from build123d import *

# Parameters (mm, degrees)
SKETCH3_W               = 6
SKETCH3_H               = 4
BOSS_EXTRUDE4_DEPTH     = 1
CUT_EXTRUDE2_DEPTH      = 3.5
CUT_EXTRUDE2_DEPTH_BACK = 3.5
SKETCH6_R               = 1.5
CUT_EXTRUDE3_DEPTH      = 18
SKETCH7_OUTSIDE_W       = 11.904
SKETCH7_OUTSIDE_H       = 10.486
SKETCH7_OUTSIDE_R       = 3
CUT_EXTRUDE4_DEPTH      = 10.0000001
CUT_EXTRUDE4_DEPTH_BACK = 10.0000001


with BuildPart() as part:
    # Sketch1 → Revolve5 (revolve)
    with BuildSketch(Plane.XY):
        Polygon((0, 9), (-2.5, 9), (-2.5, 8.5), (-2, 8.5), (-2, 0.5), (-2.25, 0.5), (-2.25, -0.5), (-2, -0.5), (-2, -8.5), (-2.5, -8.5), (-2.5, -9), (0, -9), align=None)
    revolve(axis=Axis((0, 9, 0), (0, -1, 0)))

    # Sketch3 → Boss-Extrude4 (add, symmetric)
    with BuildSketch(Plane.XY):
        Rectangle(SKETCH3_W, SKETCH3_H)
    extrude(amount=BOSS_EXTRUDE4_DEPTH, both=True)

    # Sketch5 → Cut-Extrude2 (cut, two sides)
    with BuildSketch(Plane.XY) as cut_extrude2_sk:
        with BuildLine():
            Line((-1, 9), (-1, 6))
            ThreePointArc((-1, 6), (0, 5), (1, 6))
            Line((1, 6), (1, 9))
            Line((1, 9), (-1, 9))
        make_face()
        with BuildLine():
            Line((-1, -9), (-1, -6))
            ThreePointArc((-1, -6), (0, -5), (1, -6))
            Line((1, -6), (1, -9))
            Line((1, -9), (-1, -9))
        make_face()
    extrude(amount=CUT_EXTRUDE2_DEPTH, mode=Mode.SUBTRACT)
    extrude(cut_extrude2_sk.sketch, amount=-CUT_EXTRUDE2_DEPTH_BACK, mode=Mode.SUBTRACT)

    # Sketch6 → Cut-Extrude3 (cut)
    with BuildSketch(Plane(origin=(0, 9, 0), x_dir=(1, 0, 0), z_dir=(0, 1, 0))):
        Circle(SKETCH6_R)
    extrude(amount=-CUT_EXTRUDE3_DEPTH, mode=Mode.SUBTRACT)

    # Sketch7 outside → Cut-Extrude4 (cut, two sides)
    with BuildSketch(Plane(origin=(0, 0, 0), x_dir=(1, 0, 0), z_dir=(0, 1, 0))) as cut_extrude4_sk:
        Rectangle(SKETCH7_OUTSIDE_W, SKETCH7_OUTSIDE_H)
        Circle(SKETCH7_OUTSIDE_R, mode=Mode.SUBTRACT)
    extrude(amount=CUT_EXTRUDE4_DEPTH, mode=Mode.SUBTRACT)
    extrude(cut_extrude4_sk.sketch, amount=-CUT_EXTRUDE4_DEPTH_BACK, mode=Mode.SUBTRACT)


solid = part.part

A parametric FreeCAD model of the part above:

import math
import FreeCAD as App
import Part
import Sketcher
Q = App.Units.Quantity

doc = App.newDocument("Part")
body = doc.addObject("PartDesign::Body", "Body")

sketch1 = doc.addObject("Sketcher::SketchObject", "Sketch")
body.addObject(sketch1)
sketch1.AttachmentSupport = (doc.XY_Plane, [""])
sketch1.MapMode = "FlatFace"
sketch1.addGeometry([
    Part.LineSegment(App.Vector(0, 9, 0), App.Vector(-2.5, 9, 0)),
    Part.LineSegment(App.Vector(-2.5, 9, 0), App.Vector(-2.5, 8.5, 0)),
    Part.LineSegment(App.Vector(-2.5, 8.5, 0), App.Vector(-2, 8.5, 0)),
    Part.LineSegment(App.Vector(-2, 8.5, 0), App.Vector(-2, 0.5, 0)),
    Part.LineSegment(App.Vector(-2, 0.5, 0), App.Vector(-2.25, 0.5, 0)),
    Part.LineSegment(App.Vector(-2.25, 0.5, 0), App.Vector(-2.25, -0.5, 0)),
    Part.LineSegment(App.Vector(-2.25, -0.5, 0), App.Vector(-2, -0.5, 0)),
    Part.LineSegment(App.Vector(-2, -0.5, 0), App.Vector(-2, -8.5, 0)),
    Part.LineSegment(App.Vector(-2, -8.5, 0), App.Vector(-2.5, -8.5, 0)),
    Part.LineSegment(App.Vector(-2.5, -8.5, 0), App.Vector(-2.5, -9, 0)),
    Part.LineSegment(App.Vector(-2.5, -9, 0), App.Vector(0, -9, 0)),
    Part.LineSegment(App.Vector(0, -9, 0), App.Vector(0, 9, 0)),
], False)
sketch1.addConstraint([
    Sketcher.Constraint("Coincident", 0, 2, 1, 1),
    Sketcher.Constraint("Coincident", 1, 2, 2, 1),
    Sketcher.Constraint("Coincident", 2, 2, 3, 1),
    Sketcher.Constraint("Coincident", 3, 2, 4, 1),
    Sketcher.Constraint("Coincident", 4, 2, 5, 1),
    Sketcher.Constraint("Coincident", 5, 2, 6, 1),
    Sketcher.Constraint("Coincident", 6, 2, 7, 1),
    Sketcher.Constraint("Coincident", 7, 2, 8, 1),
    Sketcher.Constraint("Coincident", 8, 2, 9, 1),
    Sketcher.Constraint("Coincident", 9, 2, 10, 1),
    Sketcher.Constraint("Coincident", 10, 2, 11, 1),
    Sketcher.Constraint("Coincident", 11, 2, 0, 1),
    Sketcher.Constraint("Horizontal", 0),
    Sketcher.Constraint("Vertical", 1),
    Sketcher.Constraint("Horizontal", 2),
    Sketcher.Constraint("Vertical", 3),
    Sketcher.Constraint("Horizontal", 4),
    Sketcher.Constraint("Vertical", 5),
    Sketcher.Constraint("Horizontal", 6),
    Sketcher.Constraint("Vertical", 7),
    Sketcher.Constraint("Horizontal", 8),
    Sketcher.Constraint("Vertical", 9),
    Sketcher.Constraint("Horizontal", 10),
    Sketcher.Constraint("Vertical", 11),
    Sketcher.Constraint("Symmetric", 10, 2, 11, 2, -1, 1),
    Sketcher.Constraint("Symmetric", 3, 2, 6, 2, -1),
    Sketcher.Constraint("Symmetric", 1, 2, 8, 2, -1),
    Sketcher.Constraint("Equal", 8, 1),
    Sketcher.Constraint("DistanceY", 3, 2, 3, 1, Q("8 mm")),
    Sketcher.Constraint("DistanceY", 5, 2, 5, 1, Q("1 mm")),
    Sketcher.Constraint("DistanceY", 11, 1, 11, 2, Q("18 mm")),
    Sketcher.Constraint("DistanceX", 0, 2, 0, 1, Q("2.5 mm")),
    Sketcher.Constraint("DistanceX", 4, 2, 4, 1, Q("0.25 mm")),
])
revolution = doc.addObject("PartDesign::Revolution", "Revolution")
body.addObject(revolution)
revolution.Profile = sketch1
revolution.ReferenceAxis = (sketch1, ["V_Axis"])
revolution.Angle = 360

sketch2 = doc.addObject("Sketcher::SketchObject", "Sketch001")
body.addObject(sketch2)
sketch2.AttachmentSupport = (doc.XY_Plane, [""])
sketch2.MapMode = "FlatFace"
sketch2.addGeometry([
    Part.LineSegment(App.Vector(-3, 2, 0), App.Vector(-3, -2, 0)),
    Part.LineSegment(App.Vector(-3, -2, 0), App.Vector(3, -2, 0)),
    Part.LineSegment(App.Vector(3, -2, 0), App.Vector(3, 2, 0)),
    Part.LineSegment(App.Vector(3, 2, 0), App.Vector(-3, 2, 0)),
], False)
sketch2.addConstraint([
    Sketcher.Constraint("Coincident", 0, 2, 1, 1),
    Sketcher.Constraint("Coincident", 1, 2, 2, 1),
    Sketcher.Constraint("Coincident", 2, 2, 3, 1),
    Sketcher.Constraint("Coincident", 3, 2, 0, 1),
    Sketcher.Constraint("Vertical", 0),
    Sketcher.Constraint("Horizontal", 1),
    Sketcher.Constraint("Vertical", 2),
    Sketcher.Constraint("Horizontal", 3),
    Sketcher.Constraint("Symmetric", 0, 2, 2, 2, -1, 1),
    Sketcher.Constraint("DistanceX", 1, 1, 1, 2, Q("6 mm")),
    Sketcher.Constraint("DistanceY", 0, 2, 0, 1, Q("4 mm")),
])
pad1 = doc.addObject("PartDesign::Pad", "Pad")
body.addObject(pad1)
pad1.Profile = sketch2
pad1.Length = 2
pad1.Midplane = True

sketch3 = doc.addObject("Sketcher::SketchObject", "Sketch002")
body.addObject(sketch3)
sketch3.AttachmentSupport = (doc.XY_Plane, [""])
sketch3.MapMode = "FlatFace"
sketch3.addGeometry([
    Part.LineSegment(App.Vector(-1, 9, 0), App.Vector(-1, 6, 0)),
    Part.ArcOfCircle(Part.Circle(App.Vector(0, 6, 0), App.Vector(0, 0, 1), 1), math.radians(180), math.radians(360)),
    Part.LineSegment(App.Vector(1, 6, 0), App.Vector(1, 9, 0)),
    Part.LineSegment(App.Vector(1, 9, 0), App.Vector(-1, 9, 0)),
    Part.LineSegment(App.Vector(-1, -6, 0), App.Vector(-1, -9, 0)),
    Part.LineSegment(App.Vector(-1, -9, 0), App.Vector(1, -9, 0)),
    Part.LineSegment(App.Vector(1, -9, 0), App.Vector(1, -6, 0)),
    Part.ArcOfCircle(Part.Circle(App.Vector(0, -6, 0), App.Vector(0, 0, 1), 1), math.radians(0), math.radians(180)),
], False)
sketch3.addConstraint([
    Sketcher.Constraint("Tangent", 0, 2, 1, 1),
    Sketcher.Constraint("Tangent", 1, 2, 2, 1),
    Sketcher.Constraint("Coincident", 2, 2, 3, 1),
    Sketcher.Constraint("Coincident", 3, 2, 0, 1),
    Sketcher.Constraint("Coincident", 4, 2, 5, 1),
    Sketcher.Constraint("Coincident", 5, 2, 6, 1),
    Sketcher.Constraint("Tangent", 6, 2, 7, 1),
    Sketcher.Constraint("Tangent", 7, 2, 4, 1),
    Sketcher.Constraint("Vertical", 0),
    Sketcher.Constraint("Vertical", 2),
    Sketcher.Constraint("Horizontal", 3),
    Sketcher.Constraint("Vertical", 4),
    Sketcher.Constraint("Horizontal", 5),
    Sketcher.Constraint("Vertical", 6),
    Sketcher.Constraint("Equal", 1, 7),
    Sketcher.Constraint("Symmetric", 1, 3, 7, 3, -1, 1),
    Sketcher.Constraint("Symmetric", 3, 2, 4, 2, -1),
    Sketcher.Constraint("Radius", 1, Q("1 mm")),
    Sketcher.Constraint("DistanceY", 0, 2, 0, 1, Q("3 mm")),
    Sketcher.Constraint("DistanceY", -1, 1, 1, 3, Q("6 mm")),
])
pocket1 = doc.addObject("PartDesign::Pocket", "Pocket")
body.addObject(pocket1)
pocket1.Profile = sketch3
pocket1.Type = "ThroughAll"
pocket1.Midplane = True

sketch4 = doc.addObject("Sketcher::SketchObject", "Sketch003")
body.addObject(sketch4)
sketch4.AttachmentSupport = (doc.XZ_Plane, [""])
sketch4.MapMode = "FlatFace"
sketch4.AttachmentOffset = App.Placement(App.Vector(0, 0, -9), App.Rotation())
sketch4.addGeometry(Part.Circle(App.Vector(0, 0, 0), App.Vector(0, 0, 1), 1.5), False)
sketch4.addConstraint([
    Sketcher.Constraint("Coincident", 0, 3, -1, 1),
    Sketcher.Constraint("Diameter", 0, Q("3 mm")),
])
pocket2 = doc.addObject("PartDesign::Pocket", "Pocket001")
body.addObject(pocket2)
pocket2.Profile = sketch4
pocket2.Length = 18
pocket2.Reversed = True

sketch5 = doc.addObject("Sketcher::SketchObject", "Sketch004")
body.addObject(sketch5)
sketch5.AttachmentSupport = (doc.XZ_Plane, [""])
sketch5.MapMode = "FlatFace"
sketch5.addGeometry([
    Part.LineSegment(App.Vector(-5.952, -5.243, 0), App.Vector(-5.952, 5.243, 0)),
    Part.LineSegment(App.Vector(-5.952, 5.243, 0), App.Vector(5.952, 5.243, 0)),
    Part.LineSegment(App.Vector(5.952, 5.243, 0), App.Vector(5.952, -5.243, 0)),
    Part.LineSegment(App.Vector(5.952, -5.243, 0), App.Vector(-5.952, -5.243, 0)),
    Part.Circle(App.Vector(0, 0, 0), App.Vector(0, 0, 1), 3),
], False)
sketch5.addConstraint([
    Sketcher.Constraint("Coincident", 0, 2, 1, 1),
    Sketcher.Constraint("Coincident", 1, 2, 2, 1),
    Sketcher.Constraint("Coincident", 2, 2, 3, 1),
    Sketcher.Constraint("Coincident", 3, 2, 0, 1),
    Sketcher.Constraint("Vertical", 0),
    Sketcher.Constraint("Horizontal", 1),
    Sketcher.Constraint("Vertical", 2),
    Sketcher.Constraint("Horizontal", 3),
    Sketcher.Constraint("Coincident", 4, 3, -1, 1),
    Sketcher.Constraint("Symmetric", 0, 2, 2, 2, -1, 1),
    Sketcher.Constraint("Diameter", 4, Q("6 mm")),
    Sketcher.Constraint("DistanceX", 1, 1, 1, 2, Q("11.904 mm")),
    Sketcher.Constraint("DistanceY", 0, 1, 0, 2, Q("10.486 mm")),
])
pocket3 = doc.addObject("PartDesign::Pocket", "Pocket002")
body.addObject(pocket3)
pocket3.Profile = sketch5
pocket3.Type = "ThroughAll"
pocket3.Midplane = True

doc.recompute()
